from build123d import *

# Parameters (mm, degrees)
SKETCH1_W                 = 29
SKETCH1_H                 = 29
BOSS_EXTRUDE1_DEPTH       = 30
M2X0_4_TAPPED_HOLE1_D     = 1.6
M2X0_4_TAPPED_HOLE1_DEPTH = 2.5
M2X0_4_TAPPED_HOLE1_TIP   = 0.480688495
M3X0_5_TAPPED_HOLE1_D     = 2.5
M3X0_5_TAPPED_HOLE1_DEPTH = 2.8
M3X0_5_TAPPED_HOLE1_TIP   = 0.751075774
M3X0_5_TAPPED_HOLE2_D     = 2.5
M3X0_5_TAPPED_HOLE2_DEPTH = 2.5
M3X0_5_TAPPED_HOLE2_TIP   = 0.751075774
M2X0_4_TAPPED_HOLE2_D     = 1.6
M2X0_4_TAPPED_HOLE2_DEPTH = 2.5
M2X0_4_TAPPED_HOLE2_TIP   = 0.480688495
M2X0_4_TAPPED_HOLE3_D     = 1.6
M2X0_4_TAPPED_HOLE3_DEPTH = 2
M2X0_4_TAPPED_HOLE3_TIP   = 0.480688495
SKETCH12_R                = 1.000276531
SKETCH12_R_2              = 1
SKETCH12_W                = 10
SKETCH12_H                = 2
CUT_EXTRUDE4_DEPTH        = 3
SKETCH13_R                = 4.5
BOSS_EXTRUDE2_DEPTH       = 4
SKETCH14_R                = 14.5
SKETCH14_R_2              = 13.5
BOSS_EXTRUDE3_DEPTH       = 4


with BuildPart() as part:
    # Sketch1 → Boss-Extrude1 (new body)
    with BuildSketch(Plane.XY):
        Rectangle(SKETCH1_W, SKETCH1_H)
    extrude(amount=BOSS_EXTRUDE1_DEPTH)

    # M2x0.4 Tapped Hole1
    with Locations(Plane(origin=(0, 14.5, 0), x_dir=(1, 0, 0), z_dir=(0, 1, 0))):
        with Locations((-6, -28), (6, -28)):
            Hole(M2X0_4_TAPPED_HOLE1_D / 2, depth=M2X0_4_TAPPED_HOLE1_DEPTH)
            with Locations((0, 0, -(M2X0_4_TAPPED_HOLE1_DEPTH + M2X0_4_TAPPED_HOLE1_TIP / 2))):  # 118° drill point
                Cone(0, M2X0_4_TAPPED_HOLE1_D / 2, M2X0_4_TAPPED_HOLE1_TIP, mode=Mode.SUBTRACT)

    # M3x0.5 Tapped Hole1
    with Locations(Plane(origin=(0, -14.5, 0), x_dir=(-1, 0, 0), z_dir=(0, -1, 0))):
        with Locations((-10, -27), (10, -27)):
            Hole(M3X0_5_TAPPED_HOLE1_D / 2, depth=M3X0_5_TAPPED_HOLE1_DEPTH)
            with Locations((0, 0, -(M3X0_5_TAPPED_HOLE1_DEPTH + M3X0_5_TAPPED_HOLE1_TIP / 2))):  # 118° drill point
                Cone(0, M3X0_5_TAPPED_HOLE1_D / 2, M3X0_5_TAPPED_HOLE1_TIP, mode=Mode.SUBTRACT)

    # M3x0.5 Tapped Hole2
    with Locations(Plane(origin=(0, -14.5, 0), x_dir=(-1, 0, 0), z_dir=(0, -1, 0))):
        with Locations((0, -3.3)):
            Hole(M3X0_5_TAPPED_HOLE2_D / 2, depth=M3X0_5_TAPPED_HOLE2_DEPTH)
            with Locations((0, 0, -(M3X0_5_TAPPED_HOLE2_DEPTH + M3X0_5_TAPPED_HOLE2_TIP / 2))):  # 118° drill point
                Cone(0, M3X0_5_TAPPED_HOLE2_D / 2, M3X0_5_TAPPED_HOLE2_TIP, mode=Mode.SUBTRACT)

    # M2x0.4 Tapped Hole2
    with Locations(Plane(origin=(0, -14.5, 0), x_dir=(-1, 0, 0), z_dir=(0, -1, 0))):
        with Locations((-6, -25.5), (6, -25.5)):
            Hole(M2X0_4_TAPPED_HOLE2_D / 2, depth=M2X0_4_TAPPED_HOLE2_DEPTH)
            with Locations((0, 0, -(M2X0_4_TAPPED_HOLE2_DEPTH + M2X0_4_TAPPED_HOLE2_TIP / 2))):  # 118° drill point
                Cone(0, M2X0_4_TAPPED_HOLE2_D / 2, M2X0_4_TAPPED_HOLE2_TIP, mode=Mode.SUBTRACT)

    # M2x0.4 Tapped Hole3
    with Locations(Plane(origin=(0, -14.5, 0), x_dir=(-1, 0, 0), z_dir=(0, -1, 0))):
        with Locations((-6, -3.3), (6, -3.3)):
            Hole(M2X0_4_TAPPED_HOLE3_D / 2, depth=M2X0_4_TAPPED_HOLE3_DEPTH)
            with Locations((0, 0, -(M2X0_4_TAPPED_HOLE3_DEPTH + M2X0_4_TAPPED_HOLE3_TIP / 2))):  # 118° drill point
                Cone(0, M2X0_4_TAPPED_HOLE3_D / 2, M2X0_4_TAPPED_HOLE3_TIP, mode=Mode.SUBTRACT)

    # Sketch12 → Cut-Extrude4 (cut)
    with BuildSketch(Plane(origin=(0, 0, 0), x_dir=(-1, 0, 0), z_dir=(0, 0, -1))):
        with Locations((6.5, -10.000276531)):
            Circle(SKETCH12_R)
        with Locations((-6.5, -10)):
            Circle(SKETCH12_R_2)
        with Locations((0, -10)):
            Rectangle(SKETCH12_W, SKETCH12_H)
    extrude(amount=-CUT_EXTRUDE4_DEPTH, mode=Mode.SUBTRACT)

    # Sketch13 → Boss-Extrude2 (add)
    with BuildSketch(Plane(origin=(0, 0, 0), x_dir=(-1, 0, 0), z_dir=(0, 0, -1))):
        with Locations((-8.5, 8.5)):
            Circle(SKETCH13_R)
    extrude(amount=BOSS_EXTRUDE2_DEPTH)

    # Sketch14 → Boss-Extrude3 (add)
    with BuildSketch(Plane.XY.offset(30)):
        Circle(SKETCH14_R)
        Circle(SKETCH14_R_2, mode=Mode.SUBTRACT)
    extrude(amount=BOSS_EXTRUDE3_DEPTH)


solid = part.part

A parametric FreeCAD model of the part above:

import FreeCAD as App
import Part
import Sketcher
Q = App.Units.Quantity

doc = App.newDocument("Part")
body = doc.addObject("PartDesign::Body", "Body")

# Sketch on XY plane
sketch1 = body.newObject("Sketcher::SketchObject", "Sketch")
sketch1.AttachmentSupport = (doc.getObject("XY_Plane"), [""])
sketch1.MapMode = "FlatFace"
sketch1.addGeometry(Part.LineSegment(App.Vector(-14, 14, 0), App.Vector(-14, -14, 0)), False)
sketch1.addGeometry(Part.LineSegment(App.Vector(-14, -14, 0), App.Vector(14, -14, 0)), False)
sketch1.addGeometry(Part.LineSegment(App.Vector(14, -14, 0), App.Vector(14, 14, 0)), False)
sketch1.addGeometry(Part.LineSegment(App.Vector(14, 14, 0), App.Vector(-14, 14, 0)), False)
sketch1.addConstraint(Sketcher.Constraint("Coincident", 0, 2, 1, 1))
sketch1.addConstraint(Sketcher.Constraint("Coincident", 1, 2, 2, 1))
sketch1.addConstraint(Sketcher.Constraint("Coincident", 2, 2, 3, 1))
sketch1.addConstraint(Sketcher.Constraint("Coincident", 3, 2, 0, 1))
sketch1.addConstraint(Sketcher.Constraint("Vertical", 0))
sketch1.addConstraint(Sketcher.Constraint("Horizontal", 1))
sketch1.addConstraint(Sketcher.Constraint("Vertical", 2))
sketch1.addConstraint(Sketcher.Constraint("Horizontal", 3))
sketch1.addConstraint(Sketcher.Constraint("Symmetric", 0, 2, 2, 2, -1, 1))
sketch1.addConstraint(Sketcher.Constraint("Equal", 3, 0))
sketch1.addConstraint(Sketcher.Constraint("DistanceX", 1, 1, 1, 2, Q("29 mm")))
pad1 = body.newObject("PartDesign::Pad", "Pad")
pad1.Profile = sketch1
pad1.Length = 30

# Sketch on XZ plane
sketch2 = body.newObject("Sketcher::SketchObject", "Sketch001")
sketch2.AttachmentSupport = (doc.getObject("XZ_Plane"), [""])
sketch2.MapMode = "FlatFace"
sketch2.AttachmentOffset = App.Placement(App.Vector(0, 0, -14.5), App.Rotation())
sketch2.addGeometry(Part.Circle(App.Vector(-6, 28, 0), App.Vector(0, 0, 1), 0.8), False)
sketch2.addGeometry(Part.Circle(App.Vector(6, 28, 0), App.Vector(0, 0, 1), 0.8), False)
sketch2.addConstraint(Sketcher.Constraint("Equal", 0, 1))
sketch2.addConstraint(Sketcher.Constraint("Symmetric", 0, 3, 1, 3, -2))
sketch2.addConstraint(Sketcher.Constraint("Diameter", 0, Q("1.6 mm")))
sketch2.addConstraint(Sketcher.Constraint("DistanceX", 0, 3, -1, 1, Q("6 mm")))
sketch2.addConstraint(Sketcher.Constraint("DistanceY", -1, 1, 0, 3, Q("28 mm")))
doc.recompute()
hole = body.newObject("PartDesign::Hole", "Hole")
hole.Profile = sketch2
hole.ThreadType = "None"
hole.Diameter = 1.6
hole.DepthType = "Dimension"
hole.Depth = 2.5
hole.DrillPoint = "Angled"
hole.DrillPointAngle = 118
hole.Reversed = True

# Sketch on XZ plane
sketch3 = body.newObject("Sketcher::SketchObject", "Sketch002")
sketch3.AttachmentSupport = (doc.getObject("XZ_Plane"), [""])
sketch3.MapMode = "FlatFace"
sketch3.AttachmentOffset = App.Placement(App.Vector(0, 0, 14.5), App.Rotation())
sketch3.addGeometry(Part.Circle(App.Vector(10, 27, 0), App.Vector(0, 0, 1), 1.2), False)
sketch3.addGeometry(Part.Circle(App.Vector(-10, 27, 0), App.Vector(0, 0, 1), 1.2), False)
sketch3.addConstraint(Sketcher.Constraint("Equal", 0, 1))
sketch3.addConstraint(Sketcher.Constraint("Symmetric", 0, 3, 1, 3, -2))
sketch3.addConstraint(Sketcher.Constraint("Diameter", 0, Q("2.5 mm")))
sketch3.addConstraint(Sketcher.Constraint("DistanceX", -1, 1, 0, 3, Q("10 mm")))
sketch3.addConstraint(Sketcher.Constraint("DistanceY", -1, 1, 0, 3, Q("27 mm")))
doc.recompute()
hole2 = body.newObject("PartDesign::Hole", "Hole001")
hole2.Profile = sketch3
hole2.ThreadType = "None"
hole2.Diameter = 2.5
hole2.DepthType = "Dimension"
hole2.Depth = 2.8
hole2.DrillPoint = "Angled"
hole2.DrillPointAngle = 118

# Sketch on XZ plane
sketch4 = body.newObject("Sketcher::SketchObject", "Sketch003")
sketch4.AttachmentSupport = (doc.getObject("XZ_Plane"), [""])
sketch4.MapMode = "FlatFace"
sketch4.AttachmentOffset = App.Placement(App.Vector(0, 0, 14.5), App.Rotation())
sketch4.addGeometry(Part.Circle(App.Vector(0, 3.3, 0), App.Vector(0, 0, 1), 1.2), False)
sketch4.addConstraint(Sketcher.Constraint("PointOnObject", 0, 3, -2))
sketch4.addConstraint(Sketcher.Constraint("Diameter", 0, Q("2.5 mm")))
sketch4.addConstraint(Sketcher.Constraint("DistanceY", -1, 1, 0, 3, Q("3.3 mm")))
doc.recompute()
hole3 = body.newObject("PartDesign::Hole", "Hole002")
hole3.Profile = sketch4
hole3.ThreadType = "None"
hole3.Diameter = 2.5
hole3.DepthType = "Dimension"
hole3.Depth = 2.5
hole3.DrillPoint = "Angled"
hole3.DrillPointAngle = 118

# Sketch on XZ plane
sketch5 = body.newObject("Sketcher::SketchObject", "Sketch004")
sketch5.AttachmentSupport = (doc.getObject("XZ_Plane"), [""])
sketch5.MapMode = "FlatFace"
sketch5.AttachmentOffset = App.Placement(App.Vector(0, 0, 14.5), App.Rotation())
sketch5.addGeometry(Part.Circle(App.Vector(6, 25.5, 0), App.Vector(0, 0, 1), 0.8), False)
sketch5.addGeometry(Part.Circle(App.Vector(-6, 25.5, 0), App.Vector(0, 0, 1), 0.8), False)
sketch5.addConstraint(Sketcher.Constraint("Equal", 0, 1))
sketch5.addConstraint(Sketcher.Constraint("Symmetric", 0, 3, 1, 3, -2))
sketch5.addConstraint(Sketcher.Constraint("Diameter", 0, Q("1.6 mm")))
sketch5.addConstraint(Sketcher.Constraint("DistanceX", -1, 1, 0, 3, Q("6 mm")))
sketch5.addConstraint(Sketcher.Constraint("DistanceY", -1, 1, 0, 3, Q("25.5 mm")))
doc.recompute()
hole4 = body.newObject("PartDesign::Hole", "Hole003")
hole4.Profile = sketch5
hole4.ThreadType = "None"
hole4.Diameter = 1.6
hole4.DepthType = "Dimension"
hole4.Depth = 2.5
hole4.DrillPoint = "Angled"
hole4.DrillPointAngle = 118

# Sketch on XZ plane
sketch6 = body.newObject("Sketcher::SketchObject", "Sketch005")
sketch6.AttachmentSupport = (doc.getObject("XZ_Plane"), [""])
sketch6.MapMode = "FlatFace"
sketch6.AttachmentOffset = App.Placement(App.Vector(0, 0, 14.5), App.Rotation())
sketch6.addGeometry(Part.Circle(App.Vector(6, 3.3, 0), App.Vector(0, 0, 1), 0.8), False)
sketch6.addGeometry(Part.Circle(App.Vector(-6, 3.3, 0), App.Vector(0, 0, 1), 0.8), False)
sketch6.addConstraint(Sketcher.Constraint("Equal", 0, 1))
sketch6.addConstraint(Sketcher.Constraint("Symmetric", 0, 3, 1, 3, -2))
sketch6.addConstraint(Sketcher.Constraint("Diameter", 0, Q("1.6 mm")))
sketch6.addConstraint(Sketcher.Constraint("DistanceX", -1, 1, 0, 3, Q("6 mm")))
sketch6.addConstraint(Sketcher.Constraint("DistanceY", -1, 1, 0, 3, Q("3.3 mm")))
doc.recompute()
hole5 = body.newObject("PartDesign::Hole", "Hole004")
hole5.Profile = sketch6
hole5.ThreadType = "None"
hole5.Diameter = 1.6
hole5.DepthType = "Dimension"
hole5.Depth = 2
hole5.DrillPoint = "Angled"
hole5.DrillPointAngle = 118

# Sketch on XY plane
sketch7 = body.newObject("Sketcher::SketchObject", "Sketch006")
sketch7.AttachmentSupport = (doc.getObject("XY_Plane"), [""])
sketch7.MapMode = "FlatFace"
sketch7.addGeometry(Part.Circle(App.Vector(-6.5, -10, 0), App.Vector(0, 0, 1), 1), False)
sketch7.addGeometry(Part.Circle(App.Vector(6.5, -10, 0), App.Vector(0, 0, 1), 1), False)
sketch7.addGeometry(Part.LineSegment(App.Vector(5, -9, 0), App.Vector(5, -11, 0)), False)
sketch7.addGeometry(Part.LineSegment(App.Vector(5, -11, 0), App.Vector(-5, -11, 0)), False)
sketch7.addGeometry(Part.LineSegment(App.Vector(-5, -11, 0), App.Vector(-5, -9, 0)), False)
sketch7.addGeometry(Part.LineSegment(App.Vector(-5, -9, 0), App.Vector(5, -9, 0)), False)
sketch7.addConstraint(Sketcher.Constraint("Coincident", 2, 2, 3, 1))
sketch7.addConstraint(Sketcher.Constraint("Coincident", 3, 2, 4, 1))
sketch7.addConstraint(Sketcher.Constraint("Coincident", 4, 2, 5, 1))
sketch7.addConstraint(Sketcher.Constraint("Coincident", 5, 2, 2, 1))
sketch7.addConstraint(Sketcher.Constraint("Vertical", 2))
sketch7.addConstraint(Sketcher.Constraint("Horizontal", 3))
sketch7.addConstraint(Sketcher.Constraint("Vertical", 4))
sketch7.addConstraint(Sketcher.Constraint("Horizontal", 5))
sketch7.addConstraint(Sketcher.Constraint("Diameter", 1, Q("2 mm")))
sketch7.addConstraint(Sketcher.Constraint("DistanceX", 3, 2, 3, 1, Q("10 mm")))
sketch7.addConstraint(Sketcher.Constraint("DistanceY", 2, 2, 2, 1, Q("2 mm")))
sketch7.addConstraint(Sketcher.Constraint("DistanceY", 1, 3, -1, 1, Q("10 mm")))
sketch7.addConstraint(Sketcher.Constraint("DistanceX", -1, 1, 2, 2, Q("5 mm")))
sketch7.addConstraint(Sketcher.Constraint("DistanceY", 2, 2, -1, 1, Q("11 mm")))
sketch7.addConstraint(Sketcher.Constraint("DistanceX", 0, 3, 1, 3, Q("13 mm")))
sketch7.addConstraint(Sketcher.Constraint("DistanceX", 0, 3, -1, 1, Q("6.5 mm")))
sketch7.addConstraint(Sketcher.Constraint("Diameter", 0, Q("2.000553 mm")))
sketch7.addConstraint(Sketcher.Constraint("DistanceY", 0, 3, -1, 1, Q("10.000277 mm")))
pocket1 = body.newObject("PartDesign::Pocket", "Pocket")
pocket1.Profile = sketch7
pocket1.Length = 3
pocket1.Reversed = True

# Sketch on XY plane
sketch8 = body.newObject("Sketcher::SketchObject", "Sketch007")
sketch8.AttachmentSupport = (doc.getObject("XY_Plane"), [""])
sketch8.MapMode = "FlatFace"
sketch8.addGeometry(Part.Circle(App.Vector(8.5, 8.5, 0), App.Vector(0, 0, 1), 4.5), False)
sketch8.addConstraint(Sketcher.Constraint("Diameter", 0, Q("9 mm")))
sketch8.addConstraint(Sketcher.Constraint("DistanceX", -1, 1, 0, 3, Q("8.5 mm")))
sketch8.addConstraint(Sketcher.Constraint("DistanceY", -1, 1, 0, 3, Q("8.5 mm")))
pad2 = body.newObject("PartDesign::Pad", "Pad001")
pad2.Profile = sketch8
pad2.Length = 4
pad2.Reversed = True

# Sketch on XY plane
sketch9 = body.newObject("Sketcher::SketchObject", "Sketch008")
sketch9.AttachmentSupport = (doc.getObject("XY_Plane"), [""])
sketch9.MapMode = "FlatFace"
sketch9.AttachmentOffset = App.Placement(App.Vector(0, 0, 30), App.Rotation())
sketch9.addGeometry(Part.Circle(App.Vector(0, 0, 0), App.Vector(0, 0, 1), 14), False)
sketch9.addGeometry(Part.Circle(App.Vector(0, 0, 0), App.Vector(0, 0, 1), 14), False)
sketch9.addConstraint(Sketcher.Constraint("Coincident", 0, 3, -1, 1))
sketch9.addConstraint(Sketcher.Constraint("Coincident", 1, 3, -1, 1))
sketch9.addConstraint(Sketcher.Constraint("Diameter", 0, Q("29 mm")))
sketch9.addConstraint(Sketcher.Constraint("Diameter", 1, Q("27 mm")))
pad3 = body.newObject("PartDesign::Pad", "Pad002")
pad3.Profile = sketch9
pad3.Length = 4

doc.recompute()
